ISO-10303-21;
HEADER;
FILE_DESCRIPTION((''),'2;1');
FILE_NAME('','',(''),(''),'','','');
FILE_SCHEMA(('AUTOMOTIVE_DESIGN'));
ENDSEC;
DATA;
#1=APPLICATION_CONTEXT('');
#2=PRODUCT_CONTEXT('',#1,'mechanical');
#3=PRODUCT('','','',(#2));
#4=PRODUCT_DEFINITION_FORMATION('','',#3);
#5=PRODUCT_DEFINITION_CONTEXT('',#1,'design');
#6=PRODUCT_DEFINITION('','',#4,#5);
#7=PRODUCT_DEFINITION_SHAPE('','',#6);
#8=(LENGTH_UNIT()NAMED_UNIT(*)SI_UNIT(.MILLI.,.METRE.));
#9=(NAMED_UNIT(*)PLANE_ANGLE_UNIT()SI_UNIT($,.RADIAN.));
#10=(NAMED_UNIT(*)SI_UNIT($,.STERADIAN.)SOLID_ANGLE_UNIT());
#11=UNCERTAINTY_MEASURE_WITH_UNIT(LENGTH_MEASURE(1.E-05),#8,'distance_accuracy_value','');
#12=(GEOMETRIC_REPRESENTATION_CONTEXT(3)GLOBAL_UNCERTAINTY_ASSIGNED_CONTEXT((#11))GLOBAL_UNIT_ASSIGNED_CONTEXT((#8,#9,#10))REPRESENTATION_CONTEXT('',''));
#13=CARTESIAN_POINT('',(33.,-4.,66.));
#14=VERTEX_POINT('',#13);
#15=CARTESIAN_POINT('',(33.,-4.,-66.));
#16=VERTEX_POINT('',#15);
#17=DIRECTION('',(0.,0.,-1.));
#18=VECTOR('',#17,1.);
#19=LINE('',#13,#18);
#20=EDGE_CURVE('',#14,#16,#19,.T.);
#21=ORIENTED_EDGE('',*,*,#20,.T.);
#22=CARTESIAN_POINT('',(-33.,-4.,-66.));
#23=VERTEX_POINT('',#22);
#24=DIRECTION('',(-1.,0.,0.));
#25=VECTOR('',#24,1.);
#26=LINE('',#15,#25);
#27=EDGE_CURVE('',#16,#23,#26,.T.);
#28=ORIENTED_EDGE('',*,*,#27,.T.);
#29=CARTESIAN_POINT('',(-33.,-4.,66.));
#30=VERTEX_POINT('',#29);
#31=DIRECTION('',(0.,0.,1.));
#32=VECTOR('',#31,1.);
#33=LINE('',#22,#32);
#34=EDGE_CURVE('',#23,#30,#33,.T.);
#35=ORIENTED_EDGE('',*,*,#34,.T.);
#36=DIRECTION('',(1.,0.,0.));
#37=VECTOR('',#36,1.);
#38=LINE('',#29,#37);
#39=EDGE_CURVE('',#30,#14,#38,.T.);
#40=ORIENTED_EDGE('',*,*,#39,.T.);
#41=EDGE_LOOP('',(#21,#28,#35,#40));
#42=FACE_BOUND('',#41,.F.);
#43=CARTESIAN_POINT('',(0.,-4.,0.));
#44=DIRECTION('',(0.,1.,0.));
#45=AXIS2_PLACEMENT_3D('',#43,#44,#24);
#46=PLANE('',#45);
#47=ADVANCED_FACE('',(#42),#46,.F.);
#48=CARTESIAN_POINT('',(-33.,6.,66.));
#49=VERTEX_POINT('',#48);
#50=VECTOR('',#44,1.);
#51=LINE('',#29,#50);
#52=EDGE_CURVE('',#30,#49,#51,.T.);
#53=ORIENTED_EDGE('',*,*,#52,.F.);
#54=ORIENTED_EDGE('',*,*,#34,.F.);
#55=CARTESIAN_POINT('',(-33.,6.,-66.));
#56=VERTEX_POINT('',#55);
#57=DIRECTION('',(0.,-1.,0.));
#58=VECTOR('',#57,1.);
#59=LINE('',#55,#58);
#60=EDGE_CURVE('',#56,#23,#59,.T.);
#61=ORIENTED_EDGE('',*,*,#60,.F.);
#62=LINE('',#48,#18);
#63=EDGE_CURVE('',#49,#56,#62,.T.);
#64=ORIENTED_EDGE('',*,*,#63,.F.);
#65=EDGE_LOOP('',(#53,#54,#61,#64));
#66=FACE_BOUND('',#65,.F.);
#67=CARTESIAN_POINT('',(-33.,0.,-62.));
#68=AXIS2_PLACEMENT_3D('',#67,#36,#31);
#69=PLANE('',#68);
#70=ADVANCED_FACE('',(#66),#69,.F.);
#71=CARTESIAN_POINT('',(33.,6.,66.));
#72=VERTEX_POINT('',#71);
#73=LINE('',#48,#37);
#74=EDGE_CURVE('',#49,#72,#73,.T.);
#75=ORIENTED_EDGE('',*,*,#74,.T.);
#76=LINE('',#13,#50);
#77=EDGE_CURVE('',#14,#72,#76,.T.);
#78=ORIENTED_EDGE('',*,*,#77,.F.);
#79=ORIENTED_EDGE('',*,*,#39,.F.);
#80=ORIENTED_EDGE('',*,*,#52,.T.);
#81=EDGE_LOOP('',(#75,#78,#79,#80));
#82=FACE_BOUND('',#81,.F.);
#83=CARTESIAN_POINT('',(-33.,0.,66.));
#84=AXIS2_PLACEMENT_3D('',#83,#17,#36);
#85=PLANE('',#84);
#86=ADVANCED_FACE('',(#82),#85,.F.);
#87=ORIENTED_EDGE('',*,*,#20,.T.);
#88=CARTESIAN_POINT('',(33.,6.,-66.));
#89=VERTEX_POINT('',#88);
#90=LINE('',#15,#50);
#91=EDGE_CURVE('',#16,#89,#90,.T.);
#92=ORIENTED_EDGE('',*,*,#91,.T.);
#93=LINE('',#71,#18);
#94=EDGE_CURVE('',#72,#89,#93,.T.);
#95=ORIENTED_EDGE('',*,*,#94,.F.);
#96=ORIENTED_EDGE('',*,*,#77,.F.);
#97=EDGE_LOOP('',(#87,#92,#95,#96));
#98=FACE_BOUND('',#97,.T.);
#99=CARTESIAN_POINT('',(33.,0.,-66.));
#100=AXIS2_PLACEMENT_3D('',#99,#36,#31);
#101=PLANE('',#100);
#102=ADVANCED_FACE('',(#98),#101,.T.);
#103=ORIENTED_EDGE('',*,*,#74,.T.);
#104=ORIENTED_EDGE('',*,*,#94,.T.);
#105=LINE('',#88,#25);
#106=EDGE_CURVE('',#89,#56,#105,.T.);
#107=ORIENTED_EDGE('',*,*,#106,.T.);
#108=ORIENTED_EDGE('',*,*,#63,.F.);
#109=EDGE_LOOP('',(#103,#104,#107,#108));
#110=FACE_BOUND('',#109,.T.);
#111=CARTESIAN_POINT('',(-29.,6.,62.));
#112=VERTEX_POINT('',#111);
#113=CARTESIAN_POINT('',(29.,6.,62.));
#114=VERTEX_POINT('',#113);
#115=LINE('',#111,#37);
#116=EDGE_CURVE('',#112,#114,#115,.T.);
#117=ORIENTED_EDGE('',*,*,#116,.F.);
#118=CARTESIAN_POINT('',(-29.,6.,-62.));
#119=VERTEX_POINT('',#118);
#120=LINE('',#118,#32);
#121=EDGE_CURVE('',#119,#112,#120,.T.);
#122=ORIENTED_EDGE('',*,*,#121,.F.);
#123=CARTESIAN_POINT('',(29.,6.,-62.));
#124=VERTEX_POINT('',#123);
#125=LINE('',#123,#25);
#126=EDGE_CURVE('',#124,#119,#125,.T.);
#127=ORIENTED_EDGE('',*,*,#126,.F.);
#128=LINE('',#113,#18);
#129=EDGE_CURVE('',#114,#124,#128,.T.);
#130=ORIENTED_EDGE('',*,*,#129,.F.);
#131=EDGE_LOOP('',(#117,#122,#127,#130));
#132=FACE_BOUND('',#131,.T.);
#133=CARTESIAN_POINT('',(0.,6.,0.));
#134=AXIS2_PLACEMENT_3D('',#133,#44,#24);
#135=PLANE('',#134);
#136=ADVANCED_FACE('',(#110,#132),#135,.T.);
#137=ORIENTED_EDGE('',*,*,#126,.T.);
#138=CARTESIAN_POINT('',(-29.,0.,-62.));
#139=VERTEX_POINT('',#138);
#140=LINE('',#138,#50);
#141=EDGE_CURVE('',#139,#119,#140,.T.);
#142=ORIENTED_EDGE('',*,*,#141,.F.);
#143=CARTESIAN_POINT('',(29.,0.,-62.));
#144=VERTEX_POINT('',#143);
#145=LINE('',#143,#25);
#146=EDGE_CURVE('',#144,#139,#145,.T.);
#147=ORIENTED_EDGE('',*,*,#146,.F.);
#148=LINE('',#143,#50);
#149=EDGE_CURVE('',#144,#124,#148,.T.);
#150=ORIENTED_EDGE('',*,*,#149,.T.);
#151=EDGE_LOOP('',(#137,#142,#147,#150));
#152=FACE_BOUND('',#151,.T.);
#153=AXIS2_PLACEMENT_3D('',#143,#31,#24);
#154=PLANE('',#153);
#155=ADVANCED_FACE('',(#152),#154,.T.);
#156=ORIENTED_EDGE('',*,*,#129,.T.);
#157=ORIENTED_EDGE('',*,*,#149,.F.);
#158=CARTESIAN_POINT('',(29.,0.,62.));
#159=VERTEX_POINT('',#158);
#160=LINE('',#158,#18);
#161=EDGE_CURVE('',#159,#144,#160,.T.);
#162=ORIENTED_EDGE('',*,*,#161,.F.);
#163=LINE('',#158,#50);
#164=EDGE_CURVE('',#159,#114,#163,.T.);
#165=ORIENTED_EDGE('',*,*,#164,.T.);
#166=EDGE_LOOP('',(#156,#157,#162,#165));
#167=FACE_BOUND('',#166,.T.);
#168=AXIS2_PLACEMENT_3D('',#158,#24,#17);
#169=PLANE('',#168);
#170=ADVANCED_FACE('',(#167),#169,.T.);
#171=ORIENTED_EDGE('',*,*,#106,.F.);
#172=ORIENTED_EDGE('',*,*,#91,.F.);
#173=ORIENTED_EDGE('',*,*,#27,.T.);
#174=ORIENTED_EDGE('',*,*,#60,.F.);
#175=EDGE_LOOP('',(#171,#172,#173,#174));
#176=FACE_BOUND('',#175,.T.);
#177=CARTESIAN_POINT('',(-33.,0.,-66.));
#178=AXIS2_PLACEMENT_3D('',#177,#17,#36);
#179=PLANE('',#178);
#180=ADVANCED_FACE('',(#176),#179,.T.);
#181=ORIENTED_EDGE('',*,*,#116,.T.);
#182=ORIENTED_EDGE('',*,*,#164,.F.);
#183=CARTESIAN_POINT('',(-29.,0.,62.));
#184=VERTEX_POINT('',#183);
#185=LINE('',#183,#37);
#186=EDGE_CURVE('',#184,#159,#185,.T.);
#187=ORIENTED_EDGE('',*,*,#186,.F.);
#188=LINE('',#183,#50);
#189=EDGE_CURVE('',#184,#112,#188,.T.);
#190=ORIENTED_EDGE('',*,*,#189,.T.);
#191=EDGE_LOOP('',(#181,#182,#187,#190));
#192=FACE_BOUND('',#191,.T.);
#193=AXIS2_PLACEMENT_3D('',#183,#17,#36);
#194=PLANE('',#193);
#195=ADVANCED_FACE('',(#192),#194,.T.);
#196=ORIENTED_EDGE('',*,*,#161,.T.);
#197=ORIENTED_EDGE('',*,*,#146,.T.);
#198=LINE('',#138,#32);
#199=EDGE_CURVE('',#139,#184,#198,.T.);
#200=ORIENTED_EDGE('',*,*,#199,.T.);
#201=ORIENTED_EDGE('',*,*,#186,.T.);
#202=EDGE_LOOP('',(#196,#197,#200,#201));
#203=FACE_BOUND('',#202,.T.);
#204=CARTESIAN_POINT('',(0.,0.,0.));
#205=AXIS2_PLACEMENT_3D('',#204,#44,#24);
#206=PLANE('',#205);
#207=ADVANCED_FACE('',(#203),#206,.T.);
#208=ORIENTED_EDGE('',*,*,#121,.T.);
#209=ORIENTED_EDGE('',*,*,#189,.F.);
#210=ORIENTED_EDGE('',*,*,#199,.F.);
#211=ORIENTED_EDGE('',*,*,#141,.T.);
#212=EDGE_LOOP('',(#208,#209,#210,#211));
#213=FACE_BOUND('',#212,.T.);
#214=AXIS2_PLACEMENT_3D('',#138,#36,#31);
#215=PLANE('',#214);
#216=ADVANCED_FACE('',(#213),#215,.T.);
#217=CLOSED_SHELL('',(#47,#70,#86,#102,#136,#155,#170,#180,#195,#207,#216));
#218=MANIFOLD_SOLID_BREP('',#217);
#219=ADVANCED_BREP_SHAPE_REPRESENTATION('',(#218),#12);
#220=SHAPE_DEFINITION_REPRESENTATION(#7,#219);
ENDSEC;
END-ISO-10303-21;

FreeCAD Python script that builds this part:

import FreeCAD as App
import Part
import Sketcher
Q = App.Units.Quantity


def add_polygon(sketch, points):
    """Adds a closed chain of lines whose ends are joined by coincident constraints."""
    first, n = sketch.GeometryCount, len(points)
    for a, b in zip(points, points[1:] + points[:1]):
        sketch.addGeometry(Part.LineSegment(App.Vector(*a, 0), App.Vector(*b, 0)), False)
    for i in range(n):
        sketch.addConstraint(Sketcher.Constraint("Coincident", first + i, 2, first + (i + 1) % n, 1))

doc = App.newDocument("Part")
body = doc.addObject("PartDesign::Body", "Body")

# Sketch on XZ plane
sketch1 = body.newObject("Sketcher::SketchObject", "Sketch")
sketch1.AttachmentSupport = (doc.getObject("XZ_Plane"), [""])
sketch1.MapMode = "FlatFace"
add_polygon(sketch1, [(-33, 66), (33, 66), (33, -66), (-33, -66)])  # lines 0-3
sketch1.addConstraint([
    Sketcher.Constraint("Horizontal", 0),
    Sketcher.Constraint("Vertical", 1),
    Sketcher.Constraint("Horizontal", 2),
    Sketcher.Constraint("Vertical", 3),
    Sketcher.Constraint("Symmetric", 0, 2, 2, 2, -1, 1),
    Sketcher.Constraint("DistanceX", 0, 1, 0, 2, Q("66 mm")),
    Sketcher.Constraint("DistanceY", 1, 2, 1, 1, Q("132 mm")),
])
pad1 = body.newObject("PartDesign::Pad", "Pad")
pad1.Profile = sketch1
pad1.Length = 4

# Sketch on XZ plane
sketch2 = body.newObject("Sketcher::SketchObject", "Sketch001")
sketch2.AttachmentSupport = (doc.getObject("XZ_Plane"), [""])
sketch2.MapMode = "FlatFace"
add_polygon(sketch2, [(-33, 66), (33, 66), (33, -66), (-33, -66)])  # lines 0-3
add_polygon(sketch2, [(-29, 62), (-29, -62), (29, -62), (29, 62)])  # lines 4-7
sketch2.addConstraint([
    Sketcher.Constraint("Horizontal", 0),
    Sketcher.Constraint("Vertical", 1),
    Sketcher.Constraint("Horizontal", 2),
    Sketcher.Constraint("Vertical", 3),
    Sketcher.Constraint("Vertical", 4),
    Sketcher.Constraint("Horizontal", 5),
    Sketcher.Constraint("Vertical", 6),
    Sketcher.Constraint("Horizontal", 7),
    Sketcher.Constraint("Symmetric", 0, 2, 2, 2, -1, 1),
    Sketcher.Constraint("Symmetric", 4, 2, 6, 2, -1, 1),
    Sketcher.Constraint("DistanceX", 5, 1, 5, 2, Q("58 mm")),
    Sketcher.Constraint("DistanceY", 4, 2, 4, 1, Q("124 mm")),
    Sketcher.Constraint("DistanceX", 2, 2, 4, 2, Q("4 mm")),
    Sketcher.Constraint("DistanceY", 2, 2, 4, 2, Q("4 mm")),
])
pad2 = body.newObject("PartDesign::Pad", "Pad001")
pad2.Profile = sketch2
pad2.Length = 6
pad2.Reversed = True

doc.recompute()
